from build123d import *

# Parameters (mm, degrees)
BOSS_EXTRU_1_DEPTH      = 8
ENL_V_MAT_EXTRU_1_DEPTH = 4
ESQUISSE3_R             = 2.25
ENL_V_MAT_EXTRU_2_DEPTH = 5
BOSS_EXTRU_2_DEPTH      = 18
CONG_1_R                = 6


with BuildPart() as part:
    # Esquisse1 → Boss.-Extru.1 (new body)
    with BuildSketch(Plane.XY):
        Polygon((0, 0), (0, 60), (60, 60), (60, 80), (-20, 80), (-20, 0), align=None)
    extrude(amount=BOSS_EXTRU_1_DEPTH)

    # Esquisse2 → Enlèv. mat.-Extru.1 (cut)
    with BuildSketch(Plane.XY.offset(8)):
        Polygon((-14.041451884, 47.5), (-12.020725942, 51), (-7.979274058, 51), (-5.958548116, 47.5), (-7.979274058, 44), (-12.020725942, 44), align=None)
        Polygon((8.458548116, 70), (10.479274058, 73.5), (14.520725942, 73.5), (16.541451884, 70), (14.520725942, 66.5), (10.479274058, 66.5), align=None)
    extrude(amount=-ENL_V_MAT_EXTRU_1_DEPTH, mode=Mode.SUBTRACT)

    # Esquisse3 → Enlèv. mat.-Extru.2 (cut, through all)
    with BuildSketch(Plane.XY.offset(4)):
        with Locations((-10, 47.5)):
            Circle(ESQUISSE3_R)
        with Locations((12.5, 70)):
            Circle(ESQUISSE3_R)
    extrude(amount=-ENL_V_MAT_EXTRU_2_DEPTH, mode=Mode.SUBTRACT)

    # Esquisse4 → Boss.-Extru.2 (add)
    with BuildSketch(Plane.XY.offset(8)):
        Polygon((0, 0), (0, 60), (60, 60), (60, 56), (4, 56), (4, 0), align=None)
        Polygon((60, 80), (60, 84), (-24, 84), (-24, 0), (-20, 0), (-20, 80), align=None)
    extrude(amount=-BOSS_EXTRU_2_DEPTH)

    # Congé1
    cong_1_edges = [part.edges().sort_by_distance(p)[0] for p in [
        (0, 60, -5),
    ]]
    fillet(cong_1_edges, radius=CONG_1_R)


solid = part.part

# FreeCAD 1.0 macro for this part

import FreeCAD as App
import Part
import Sketcher

V = App.Vector
Q = App.Units.Quantity


def edges_at(feature, points):
    """Names of the edges that pass closest to the given points."""
    edges = feature.Shape.Edges
    near = lambda p: min(range(len(edges)), key=lambda i: edges[i].distToShape(Part.Vertex(*p))[0])
    return sorted({f"Edge{near(p) + 1}" for p in points})


def add_polygon(sketch, points):
    """Adds a closed chain of lines whose ends are joined by coincident constraints."""
    first, n = sketch.GeometryCount, len(points)
    for a, b in zip(points, points[1:] + points[:1]):
        sketch.addGeometry(Part.LineSegment(App.Vector(*a, 0), App.Vector(*b, 0)), False)
    for i in range(n):
        sketch.addConstraint(Sketcher.Constraint("Coincident", first + i, 2, first + (i + 1) % n, 1))

doc = App.newDocument("Part")
body = doc.addObject("PartDesign::Body", "Body")

# Sketch on XY plane
sketch1 = doc.addObject("Sketcher::SketchObject", "Sketch")
body.addObject(sketch1)
sketch1.AttachmentSupport = (doc.XY_Plane, [""])
sketch1.MapMode = "FlatFace"
add_polygon(sketch1, [(0, 0), (0, 60), (60, 60), (60, 80), (-20, 80), (-20, 0)])  # lines 0-5
sketch1.addConstraint([
    Sketcher.Constraint("Vertical", 0),
    Sketcher.Constraint("Horizontal", 1),
    Sketcher.Constraint("Vertical", 2),
    Sketcher.Constraint("Horizontal", 3),
    Sketcher.Constraint("Vertical", 4),
    Sketcher.Constraint("Horizontal", 5),
    Sketcher.Constraint("Coincident", 5, 2, -1, 1),
    Sketcher.Constraint("Equal", 1, 0),
    Sketcher.Constraint("Equal", 5, 2),
    Sketcher.Constraint("DistanceX", 1, 1, 1, 2, 60.0),
    Sketcher.Constraint("DistanceX", 3, 2, 3, 1, 80.0),
])
pad1 = doc.addObject("PartDesign::Pad", "Pad")
body.addObject(pad1)
pad1.Profile = sketch1
pad1.Length = 8

# Sketch on XY plane
sketch2 = doc.addObject("Sketcher::SketchObject", "Sketch001")
body.addObject(sketch2)
sketch2.AttachmentSupport = (doc.XY_Plane, [""])
sketch2.MapMode = "FlatFace"
sketch2.AttachmentOffset = App.Placement(V(0, 0, 8), App.Rotation())
add_polygon(sketch2, [(-12, 51), (-14, 47.5), (-12, 44), (-8, 44), (-6, 47.5), (-8, 51)])  # lines 0-5
add_polygon(sketch2, [(10.5, 73.5), (8.5, 70), (10.5, 66.5), (14.5, 66.5), (16.5, 70), (14.5, 73.5)])  # lines 6-11
sketch2.addConstraint([
    Sketcher.Constraint("Horizontal", 2),
    Sketcher.Constraint("Horizontal", 5),
    Sketcher.Constraint("Horizontal", 8),
    Sketcher.Constraint("Horizontal", 11),
    Sketcher.Constraint("Parallel", 0, 3),
    Sketcher.Constraint("Parallel", 1, 4),
    Sketcher.Constraint("Parallel", 3, 6),
    Sketcher.Constraint("Parallel", 4, 7),
    Sketcher.Constraint("Parallel", 6, 9),
    Sketcher.Constraint("Parallel", 7, 10),
    Sketcher.Constraint("Horizontal", 0, 2, 3, 2),
    Sketcher.Constraint("Horizontal", 6, 2, 9, 2),
    Sketcher.Constraint("Vertical", 2, 2, 4, 2),
    Sketcher.Constraint("Vertical", 1, 2, 5, 2),
    Sketcher.Constraint("Vertical", 8, 2, 10, 2),
    Sketcher.Constraint("Equal", 5, 8),
    Sketcher.Constraint("Equal", 4, 6),
    Sketcher.Constraint("Angle", 0, Q("-120 deg")),
    Sketcher.Constraint("DistanceY", -1, 1, 1, 2, 44.0),
    Sketcher.Constraint("DistanceY", -1, 1, 4, 2, 51.0),
    Sketcher.Constraint("DistanceY", -1, 1, 6, 2, 70.0),
    Sketcher.Constraint("DistanceX", 0, 2, 6, 2, 22.5),
    Sketcher.Constraint("DistanceX", 2, 1, 2, 2, 4.041452),
    Sketcher.Constraint("DistanceX", 0, 2, -1, 1, 14.041452),
])
pocket1 = doc.addObject("PartDesign::Pocket", "Pocket")
body.addObject(pocket1)
pocket1.Profile = sketch2
pocket1.Length = 4

# Sketch on XY plane
sketch3 = doc.addObject("Sketcher::SketchObject", "Sketch002")
body.addObject(sketch3)
sketch3.AttachmentSupport = (doc.XY_Plane, [""])
sketch3.MapMode = "FlatFace"
sketch3.AttachmentOffset = App.Placement(V(0, 0, 4), App.Rotation())
sketch3.addGeometry([
    Part.Circle(V(-10, 47.5, 0), V(0, 0, 1), 2.2),
    Part.Circle(V(12.5, 70, 0), V(0, 0, 1), 2.2),
], False)
sketch3.addConstraint([
    Sketcher.Constraint("Equal", 0, 1),
    Sketcher.Constraint("Diameter", 0, 4.5),
    Sketcher.Constraint("DistanceX", 0, 3, -1, 1, 10.0),
    Sketcher.Constraint("DistanceY", -1, 1, 1, 3, 70.0),
    Sketcher.Constraint("DistanceY", -1, 1, 0, 3, 47.5),
    Sketcher.Constraint("DistanceX", -1, 1, 1, 3, 12.5),
])
pocket2 = doc.addObject("PartDesign::Pocket", "Pocket001")
body.addObject(pocket2)
pocket2.Profile = sketch3
pocket2.Type = "ThroughAll"

# Sketch on XY plane
sketch4 = doc.addObject("Sketcher::SketchObject", "Sketch003")
body.addObject(sketch4)
sketch4.AttachmentSupport = (doc.XY_Plane, [""])
sketch4.MapMode = "FlatFace"
sketch4.AttachmentOffset = App.Placement(V(0, 0, 8), App.Rotation())
add_polygon(sketch4, [(0, 60), (0, 0), (4, 0), (4, 56), (60, 56), (60, 60)])  # lines 0-5
add_polygon(sketch4, [(60, 80), (60, 84), (-24, 84), (-24, 0), (-20, 0), (-20, 80)])  # lines 6-11
sketch4.addConstraint([
    Sketcher.Constraint("Vertical", 0),
    Sketcher.Constraint("Horizontal", 1),
    Sketcher.Constraint("Vertical", 2),
    Sketcher.Constraint("Horizontal", 3),
    Sketcher.Constraint("Vertical", 4),
    Sketcher.Constraint("Horizontal", 5),
    Sketcher.Constraint("Vertical", 6),
    Sketcher.Constraint("Horizontal", 7),
    Sketcher.Constraint("Vertical", 8),
    Sketcher.Constraint("Horizontal", 9),
    Sketcher.Constraint("Vertical", 10),
    Sketcher.Constraint("Horizontal", 11),
    Sketcher.Constraint("Coincident", 0, 2, -1, 1),
    Sketcher.Constraint("PointOnObject", 8, 2, -1),
    Sketcher.Constraint("Vertical", 4, 2, 6, 2),
    Sketcher.Constraint("Equal", 1, 9),
    Sketcher.Constraint("Equal", 5, 0),
    Sketcher.Constraint("Equal", 3, 2),
    Sketcher.Constraint("Equal", 4, 6),
    Sketcher.Constraint("Equal", 7, 8),
    Sketcher.Constraint("DistanceX", 1, 1, 1, 2, 4.0),
    Sketcher.Constraint("DistanceX", 3, 1, 3, 2, 56.0),
    Sketcher.Constraint("DistanceX", 7, 2, 7, 1, 84.0),
])
pad2 = doc.addObject("PartDesign::Pad", "Pad001")
body.addObject(pad2)
pad2.Profile = sketch4
pad2.Length = 18
pad2.Reversed = True
doc.recompute()

fillet = doc.addObject("PartDesign::Fillet", "Fillet")
body.addObject(fillet)
fillet.Base = (pad2, edges_at(pad2, [(0, 60, -5)]))
fillet.Radius = 6

doc.recompute()
